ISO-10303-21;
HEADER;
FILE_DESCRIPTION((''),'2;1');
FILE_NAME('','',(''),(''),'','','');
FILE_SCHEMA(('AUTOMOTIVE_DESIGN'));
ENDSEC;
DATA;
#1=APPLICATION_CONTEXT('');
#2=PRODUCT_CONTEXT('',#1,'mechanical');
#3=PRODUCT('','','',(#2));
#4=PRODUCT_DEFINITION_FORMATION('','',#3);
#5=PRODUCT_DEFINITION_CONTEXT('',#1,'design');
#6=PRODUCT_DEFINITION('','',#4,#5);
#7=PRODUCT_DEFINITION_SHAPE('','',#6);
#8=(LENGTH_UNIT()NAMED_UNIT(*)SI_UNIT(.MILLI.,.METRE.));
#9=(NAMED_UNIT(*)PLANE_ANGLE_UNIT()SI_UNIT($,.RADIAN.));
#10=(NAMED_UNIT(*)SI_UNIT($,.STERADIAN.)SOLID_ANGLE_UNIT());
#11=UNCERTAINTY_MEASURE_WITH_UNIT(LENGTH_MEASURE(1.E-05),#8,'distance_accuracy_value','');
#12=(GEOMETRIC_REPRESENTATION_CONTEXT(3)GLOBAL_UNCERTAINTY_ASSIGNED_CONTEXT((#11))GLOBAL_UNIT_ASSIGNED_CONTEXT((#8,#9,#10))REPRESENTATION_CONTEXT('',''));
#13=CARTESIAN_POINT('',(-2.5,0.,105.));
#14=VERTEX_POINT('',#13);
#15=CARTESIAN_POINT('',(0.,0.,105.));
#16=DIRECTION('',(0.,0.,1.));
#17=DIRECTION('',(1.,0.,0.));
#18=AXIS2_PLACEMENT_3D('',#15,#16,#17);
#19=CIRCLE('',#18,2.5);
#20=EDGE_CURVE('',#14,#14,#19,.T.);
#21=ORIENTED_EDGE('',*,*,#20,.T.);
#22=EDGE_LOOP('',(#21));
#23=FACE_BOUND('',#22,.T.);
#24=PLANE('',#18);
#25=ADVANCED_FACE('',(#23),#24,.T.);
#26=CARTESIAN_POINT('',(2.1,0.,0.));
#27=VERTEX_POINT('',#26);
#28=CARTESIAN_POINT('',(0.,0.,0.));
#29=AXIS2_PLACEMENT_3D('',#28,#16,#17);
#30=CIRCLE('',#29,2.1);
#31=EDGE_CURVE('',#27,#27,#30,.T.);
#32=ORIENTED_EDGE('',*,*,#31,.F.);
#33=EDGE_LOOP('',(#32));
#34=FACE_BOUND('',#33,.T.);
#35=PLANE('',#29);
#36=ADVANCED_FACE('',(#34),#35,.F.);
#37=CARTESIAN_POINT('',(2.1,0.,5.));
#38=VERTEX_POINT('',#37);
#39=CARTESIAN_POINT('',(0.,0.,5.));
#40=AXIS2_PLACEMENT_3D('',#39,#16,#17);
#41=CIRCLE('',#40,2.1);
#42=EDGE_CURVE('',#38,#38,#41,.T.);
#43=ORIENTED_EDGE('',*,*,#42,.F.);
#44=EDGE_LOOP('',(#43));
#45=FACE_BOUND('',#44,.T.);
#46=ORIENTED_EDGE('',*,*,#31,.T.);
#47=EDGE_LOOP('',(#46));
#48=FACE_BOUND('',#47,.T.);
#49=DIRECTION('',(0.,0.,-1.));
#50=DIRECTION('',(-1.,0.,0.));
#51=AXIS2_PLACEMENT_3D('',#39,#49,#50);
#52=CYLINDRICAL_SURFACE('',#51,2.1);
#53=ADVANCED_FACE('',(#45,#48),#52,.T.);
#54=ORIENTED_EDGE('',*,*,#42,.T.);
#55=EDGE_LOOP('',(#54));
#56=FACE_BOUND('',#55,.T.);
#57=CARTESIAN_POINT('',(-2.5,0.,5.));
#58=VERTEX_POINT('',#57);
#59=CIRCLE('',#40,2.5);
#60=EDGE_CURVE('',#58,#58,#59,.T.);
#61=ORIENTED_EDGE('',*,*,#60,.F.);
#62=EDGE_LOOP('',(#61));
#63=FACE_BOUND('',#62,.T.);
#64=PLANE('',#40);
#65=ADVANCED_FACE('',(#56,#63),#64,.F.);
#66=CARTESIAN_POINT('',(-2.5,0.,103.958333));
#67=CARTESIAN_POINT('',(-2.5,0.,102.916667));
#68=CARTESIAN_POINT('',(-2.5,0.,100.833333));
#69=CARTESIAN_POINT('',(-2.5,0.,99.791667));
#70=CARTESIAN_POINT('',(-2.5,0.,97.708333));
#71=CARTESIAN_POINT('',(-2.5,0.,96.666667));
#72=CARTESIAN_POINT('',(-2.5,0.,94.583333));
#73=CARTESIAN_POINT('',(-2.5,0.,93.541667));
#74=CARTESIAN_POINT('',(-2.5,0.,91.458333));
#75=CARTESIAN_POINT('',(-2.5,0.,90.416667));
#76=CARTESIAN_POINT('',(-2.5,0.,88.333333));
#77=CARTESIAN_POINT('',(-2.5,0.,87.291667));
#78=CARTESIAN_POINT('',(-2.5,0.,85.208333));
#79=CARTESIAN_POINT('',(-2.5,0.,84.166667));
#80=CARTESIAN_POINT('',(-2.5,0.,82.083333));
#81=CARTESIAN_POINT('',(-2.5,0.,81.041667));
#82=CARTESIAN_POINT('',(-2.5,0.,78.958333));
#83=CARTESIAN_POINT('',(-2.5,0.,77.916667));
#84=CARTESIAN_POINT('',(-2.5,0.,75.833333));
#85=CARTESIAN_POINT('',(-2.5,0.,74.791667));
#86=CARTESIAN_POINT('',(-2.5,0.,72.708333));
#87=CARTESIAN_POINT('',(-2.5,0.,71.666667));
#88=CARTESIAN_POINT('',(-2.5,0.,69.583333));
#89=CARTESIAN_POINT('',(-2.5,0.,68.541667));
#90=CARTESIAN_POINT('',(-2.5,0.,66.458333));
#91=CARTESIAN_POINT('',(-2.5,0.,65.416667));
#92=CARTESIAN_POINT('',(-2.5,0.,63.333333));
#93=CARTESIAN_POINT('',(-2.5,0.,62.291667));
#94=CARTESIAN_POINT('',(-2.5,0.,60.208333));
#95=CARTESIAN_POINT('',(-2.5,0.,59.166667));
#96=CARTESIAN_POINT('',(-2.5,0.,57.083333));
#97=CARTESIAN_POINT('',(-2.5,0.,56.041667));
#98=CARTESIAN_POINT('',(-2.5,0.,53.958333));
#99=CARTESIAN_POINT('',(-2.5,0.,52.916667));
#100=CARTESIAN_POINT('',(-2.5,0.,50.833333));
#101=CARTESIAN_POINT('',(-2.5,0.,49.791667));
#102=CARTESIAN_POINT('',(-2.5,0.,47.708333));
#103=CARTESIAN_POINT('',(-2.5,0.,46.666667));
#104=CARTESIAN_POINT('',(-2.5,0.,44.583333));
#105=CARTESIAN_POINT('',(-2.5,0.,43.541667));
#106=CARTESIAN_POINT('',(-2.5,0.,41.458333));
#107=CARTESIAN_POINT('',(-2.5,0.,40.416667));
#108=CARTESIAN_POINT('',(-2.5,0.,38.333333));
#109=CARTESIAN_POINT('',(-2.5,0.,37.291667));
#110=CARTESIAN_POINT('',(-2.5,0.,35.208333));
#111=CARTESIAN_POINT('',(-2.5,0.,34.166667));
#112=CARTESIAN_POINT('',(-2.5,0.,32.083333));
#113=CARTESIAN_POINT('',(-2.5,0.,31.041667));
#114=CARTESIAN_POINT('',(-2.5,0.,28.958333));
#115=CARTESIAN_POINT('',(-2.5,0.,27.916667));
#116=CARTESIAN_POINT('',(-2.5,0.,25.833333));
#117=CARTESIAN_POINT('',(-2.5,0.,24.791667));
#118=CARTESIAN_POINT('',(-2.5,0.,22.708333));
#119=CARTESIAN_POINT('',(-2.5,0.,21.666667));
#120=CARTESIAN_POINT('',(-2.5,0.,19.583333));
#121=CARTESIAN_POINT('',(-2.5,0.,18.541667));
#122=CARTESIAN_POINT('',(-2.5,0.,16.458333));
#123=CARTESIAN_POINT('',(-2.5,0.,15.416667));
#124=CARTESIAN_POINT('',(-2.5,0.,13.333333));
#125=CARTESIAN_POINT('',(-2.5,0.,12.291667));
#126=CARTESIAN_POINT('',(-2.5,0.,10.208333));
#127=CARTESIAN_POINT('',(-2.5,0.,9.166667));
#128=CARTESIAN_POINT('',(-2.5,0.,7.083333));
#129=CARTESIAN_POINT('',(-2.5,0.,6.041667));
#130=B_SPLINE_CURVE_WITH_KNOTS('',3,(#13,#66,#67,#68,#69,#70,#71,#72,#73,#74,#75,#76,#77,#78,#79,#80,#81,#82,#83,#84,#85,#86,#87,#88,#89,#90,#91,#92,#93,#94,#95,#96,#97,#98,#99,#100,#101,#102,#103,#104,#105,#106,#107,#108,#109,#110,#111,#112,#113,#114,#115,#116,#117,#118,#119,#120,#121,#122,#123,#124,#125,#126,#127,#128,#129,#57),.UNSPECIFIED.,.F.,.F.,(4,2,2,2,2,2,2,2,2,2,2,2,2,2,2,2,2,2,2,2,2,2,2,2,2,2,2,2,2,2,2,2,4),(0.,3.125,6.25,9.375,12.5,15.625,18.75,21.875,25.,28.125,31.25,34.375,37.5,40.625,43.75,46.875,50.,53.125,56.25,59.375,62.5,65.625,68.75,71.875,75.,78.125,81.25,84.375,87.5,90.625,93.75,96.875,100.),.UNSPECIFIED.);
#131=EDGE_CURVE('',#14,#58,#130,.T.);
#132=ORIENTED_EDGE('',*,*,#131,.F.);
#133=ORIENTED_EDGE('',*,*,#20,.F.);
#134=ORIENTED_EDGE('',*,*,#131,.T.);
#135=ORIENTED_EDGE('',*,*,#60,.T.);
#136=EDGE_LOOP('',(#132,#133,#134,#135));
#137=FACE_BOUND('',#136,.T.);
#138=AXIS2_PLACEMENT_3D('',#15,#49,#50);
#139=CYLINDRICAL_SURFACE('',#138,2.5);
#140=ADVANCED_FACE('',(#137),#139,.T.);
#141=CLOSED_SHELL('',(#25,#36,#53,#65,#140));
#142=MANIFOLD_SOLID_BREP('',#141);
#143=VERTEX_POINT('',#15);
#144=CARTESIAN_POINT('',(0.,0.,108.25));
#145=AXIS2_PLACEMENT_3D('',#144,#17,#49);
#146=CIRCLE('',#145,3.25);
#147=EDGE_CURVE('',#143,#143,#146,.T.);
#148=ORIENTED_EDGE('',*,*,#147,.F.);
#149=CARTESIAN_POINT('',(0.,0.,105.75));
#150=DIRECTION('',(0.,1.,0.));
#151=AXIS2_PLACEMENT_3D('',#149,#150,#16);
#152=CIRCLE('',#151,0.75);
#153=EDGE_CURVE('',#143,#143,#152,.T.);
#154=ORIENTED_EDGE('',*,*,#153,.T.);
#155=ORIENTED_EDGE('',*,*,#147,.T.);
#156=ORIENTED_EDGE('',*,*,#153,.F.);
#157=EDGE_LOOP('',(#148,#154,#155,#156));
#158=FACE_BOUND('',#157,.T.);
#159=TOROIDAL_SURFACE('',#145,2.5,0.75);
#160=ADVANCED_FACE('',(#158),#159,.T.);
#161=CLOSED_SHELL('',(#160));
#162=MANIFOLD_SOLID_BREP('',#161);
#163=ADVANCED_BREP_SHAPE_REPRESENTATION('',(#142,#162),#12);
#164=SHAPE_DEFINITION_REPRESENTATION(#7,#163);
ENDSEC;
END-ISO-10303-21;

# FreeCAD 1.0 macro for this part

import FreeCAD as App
import Part
import Sketcher

V = App.Vector
Q = App.Units.Quantity

doc = App.newDocument("Part")
body = doc.addObject("PartDesign::Body", "Body")

# Sketch on XY plane
sketch1 = body.newObject("Sketcher::SketchObject", "Sketch")
sketch1.AttachmentSupport = (doc.getObject("XY_Plane"), [""])
sketch1.MapMode = "FlatFace"
sketch1.addGeometry(Part.Circle(V(0, 0, 0), V(0, 0, 1), 2.1), False)
sketch1.addConstraint([
    Sketcher.Constraint("Coincident", 0, 3, -1, 1),
    Sketcher.Constraint("Diameter", 0, Q("4.2 mm")),
])
pad1 = body.newObject("PartDesign::Pad", "Pad")
pad1.Profile = sketch1
pad1.Length = 5

# Sketch on XY plane
sketch2 = body.newObject("Sketcher::SketchObject", "Sketch001")
sketch2.AttachmentSupport = (doc.getObject("XY_Plane"), [""])
sketch2.MapMode = "FlatFace"
sketch2.AttachmentOffset = App.Placement(V(0, 0, 5), App.Rotation())
sketch2.addGeometry(Part.Circle(V(0, 0, 0), V(0, 0, 1), 2.5), False)
sketch2.addConstraint([
    Sketcher.Constraint("Coincident", 0, 3, -1, 1),
    Sketcher.Constraint("Diameter", 0, Q("5 mm")),
])
pad2 = body.newObject("PartDesign::Pad", "Pad001")
pad2.Profile = sketch2
pad2.Length = 100
body2 = doc.addObject("PartDesign::Body", "Body001")

# Sketch on XZ plane
sketch3 = body2.newObject("Sketcher::SketchObject", "Sketch002")
sketch3.AttachmentSupport = (doc.getObject("XZ_Plane001"), [""])
sketch3.MapMode = "FlatFace"
sketch3.addGeometry(Part.Circle(V(0, 105.8, 0), V(0, 0, 1), 0.8), False)
sketch3.addConstraint([
    Sketcher.Constraint("PointOnObject", 0, 3, -2),
    Sketcher.Constraint("Diameter", 0, Q("1.5 mm")),
    Sketcher.Constraint("DistanceY", -1, 1, 0, 3, Q("105.75 mm")),
])

# Sketch on YZ plane
sketch4 = body2.newObject("Sketcher::SketchObject", "Sketch003")
sketch4.AttachmentSupport = (doc.getObject("YZ_Plane001"), [""])
sketch4.MapMode = "FlatFace"
sketch4.addGeometry(Part.Circle(V(0, 108.2, 0), V(0, 0, 1), 2.5), False)
sketch4.addConstraint([
    Sketcher.Constraint("PointOnObject", 0, 3, -2),
    Sketcher.Constraint("Diameter", 0, Q("5 mm")),
    Sketcher.Constraint("DistanceY", -1, 1, 0, 3, Q("108.25 mm")),
])
doc.recompute()

additivepipe = body2.newObject("PartDesign::AdditivePipe", "AdditivePipe")
additivepipe.Profile = sketch3
additivepipe.Spine = (sketch4, ["Edge1"])

doc.recompute()
